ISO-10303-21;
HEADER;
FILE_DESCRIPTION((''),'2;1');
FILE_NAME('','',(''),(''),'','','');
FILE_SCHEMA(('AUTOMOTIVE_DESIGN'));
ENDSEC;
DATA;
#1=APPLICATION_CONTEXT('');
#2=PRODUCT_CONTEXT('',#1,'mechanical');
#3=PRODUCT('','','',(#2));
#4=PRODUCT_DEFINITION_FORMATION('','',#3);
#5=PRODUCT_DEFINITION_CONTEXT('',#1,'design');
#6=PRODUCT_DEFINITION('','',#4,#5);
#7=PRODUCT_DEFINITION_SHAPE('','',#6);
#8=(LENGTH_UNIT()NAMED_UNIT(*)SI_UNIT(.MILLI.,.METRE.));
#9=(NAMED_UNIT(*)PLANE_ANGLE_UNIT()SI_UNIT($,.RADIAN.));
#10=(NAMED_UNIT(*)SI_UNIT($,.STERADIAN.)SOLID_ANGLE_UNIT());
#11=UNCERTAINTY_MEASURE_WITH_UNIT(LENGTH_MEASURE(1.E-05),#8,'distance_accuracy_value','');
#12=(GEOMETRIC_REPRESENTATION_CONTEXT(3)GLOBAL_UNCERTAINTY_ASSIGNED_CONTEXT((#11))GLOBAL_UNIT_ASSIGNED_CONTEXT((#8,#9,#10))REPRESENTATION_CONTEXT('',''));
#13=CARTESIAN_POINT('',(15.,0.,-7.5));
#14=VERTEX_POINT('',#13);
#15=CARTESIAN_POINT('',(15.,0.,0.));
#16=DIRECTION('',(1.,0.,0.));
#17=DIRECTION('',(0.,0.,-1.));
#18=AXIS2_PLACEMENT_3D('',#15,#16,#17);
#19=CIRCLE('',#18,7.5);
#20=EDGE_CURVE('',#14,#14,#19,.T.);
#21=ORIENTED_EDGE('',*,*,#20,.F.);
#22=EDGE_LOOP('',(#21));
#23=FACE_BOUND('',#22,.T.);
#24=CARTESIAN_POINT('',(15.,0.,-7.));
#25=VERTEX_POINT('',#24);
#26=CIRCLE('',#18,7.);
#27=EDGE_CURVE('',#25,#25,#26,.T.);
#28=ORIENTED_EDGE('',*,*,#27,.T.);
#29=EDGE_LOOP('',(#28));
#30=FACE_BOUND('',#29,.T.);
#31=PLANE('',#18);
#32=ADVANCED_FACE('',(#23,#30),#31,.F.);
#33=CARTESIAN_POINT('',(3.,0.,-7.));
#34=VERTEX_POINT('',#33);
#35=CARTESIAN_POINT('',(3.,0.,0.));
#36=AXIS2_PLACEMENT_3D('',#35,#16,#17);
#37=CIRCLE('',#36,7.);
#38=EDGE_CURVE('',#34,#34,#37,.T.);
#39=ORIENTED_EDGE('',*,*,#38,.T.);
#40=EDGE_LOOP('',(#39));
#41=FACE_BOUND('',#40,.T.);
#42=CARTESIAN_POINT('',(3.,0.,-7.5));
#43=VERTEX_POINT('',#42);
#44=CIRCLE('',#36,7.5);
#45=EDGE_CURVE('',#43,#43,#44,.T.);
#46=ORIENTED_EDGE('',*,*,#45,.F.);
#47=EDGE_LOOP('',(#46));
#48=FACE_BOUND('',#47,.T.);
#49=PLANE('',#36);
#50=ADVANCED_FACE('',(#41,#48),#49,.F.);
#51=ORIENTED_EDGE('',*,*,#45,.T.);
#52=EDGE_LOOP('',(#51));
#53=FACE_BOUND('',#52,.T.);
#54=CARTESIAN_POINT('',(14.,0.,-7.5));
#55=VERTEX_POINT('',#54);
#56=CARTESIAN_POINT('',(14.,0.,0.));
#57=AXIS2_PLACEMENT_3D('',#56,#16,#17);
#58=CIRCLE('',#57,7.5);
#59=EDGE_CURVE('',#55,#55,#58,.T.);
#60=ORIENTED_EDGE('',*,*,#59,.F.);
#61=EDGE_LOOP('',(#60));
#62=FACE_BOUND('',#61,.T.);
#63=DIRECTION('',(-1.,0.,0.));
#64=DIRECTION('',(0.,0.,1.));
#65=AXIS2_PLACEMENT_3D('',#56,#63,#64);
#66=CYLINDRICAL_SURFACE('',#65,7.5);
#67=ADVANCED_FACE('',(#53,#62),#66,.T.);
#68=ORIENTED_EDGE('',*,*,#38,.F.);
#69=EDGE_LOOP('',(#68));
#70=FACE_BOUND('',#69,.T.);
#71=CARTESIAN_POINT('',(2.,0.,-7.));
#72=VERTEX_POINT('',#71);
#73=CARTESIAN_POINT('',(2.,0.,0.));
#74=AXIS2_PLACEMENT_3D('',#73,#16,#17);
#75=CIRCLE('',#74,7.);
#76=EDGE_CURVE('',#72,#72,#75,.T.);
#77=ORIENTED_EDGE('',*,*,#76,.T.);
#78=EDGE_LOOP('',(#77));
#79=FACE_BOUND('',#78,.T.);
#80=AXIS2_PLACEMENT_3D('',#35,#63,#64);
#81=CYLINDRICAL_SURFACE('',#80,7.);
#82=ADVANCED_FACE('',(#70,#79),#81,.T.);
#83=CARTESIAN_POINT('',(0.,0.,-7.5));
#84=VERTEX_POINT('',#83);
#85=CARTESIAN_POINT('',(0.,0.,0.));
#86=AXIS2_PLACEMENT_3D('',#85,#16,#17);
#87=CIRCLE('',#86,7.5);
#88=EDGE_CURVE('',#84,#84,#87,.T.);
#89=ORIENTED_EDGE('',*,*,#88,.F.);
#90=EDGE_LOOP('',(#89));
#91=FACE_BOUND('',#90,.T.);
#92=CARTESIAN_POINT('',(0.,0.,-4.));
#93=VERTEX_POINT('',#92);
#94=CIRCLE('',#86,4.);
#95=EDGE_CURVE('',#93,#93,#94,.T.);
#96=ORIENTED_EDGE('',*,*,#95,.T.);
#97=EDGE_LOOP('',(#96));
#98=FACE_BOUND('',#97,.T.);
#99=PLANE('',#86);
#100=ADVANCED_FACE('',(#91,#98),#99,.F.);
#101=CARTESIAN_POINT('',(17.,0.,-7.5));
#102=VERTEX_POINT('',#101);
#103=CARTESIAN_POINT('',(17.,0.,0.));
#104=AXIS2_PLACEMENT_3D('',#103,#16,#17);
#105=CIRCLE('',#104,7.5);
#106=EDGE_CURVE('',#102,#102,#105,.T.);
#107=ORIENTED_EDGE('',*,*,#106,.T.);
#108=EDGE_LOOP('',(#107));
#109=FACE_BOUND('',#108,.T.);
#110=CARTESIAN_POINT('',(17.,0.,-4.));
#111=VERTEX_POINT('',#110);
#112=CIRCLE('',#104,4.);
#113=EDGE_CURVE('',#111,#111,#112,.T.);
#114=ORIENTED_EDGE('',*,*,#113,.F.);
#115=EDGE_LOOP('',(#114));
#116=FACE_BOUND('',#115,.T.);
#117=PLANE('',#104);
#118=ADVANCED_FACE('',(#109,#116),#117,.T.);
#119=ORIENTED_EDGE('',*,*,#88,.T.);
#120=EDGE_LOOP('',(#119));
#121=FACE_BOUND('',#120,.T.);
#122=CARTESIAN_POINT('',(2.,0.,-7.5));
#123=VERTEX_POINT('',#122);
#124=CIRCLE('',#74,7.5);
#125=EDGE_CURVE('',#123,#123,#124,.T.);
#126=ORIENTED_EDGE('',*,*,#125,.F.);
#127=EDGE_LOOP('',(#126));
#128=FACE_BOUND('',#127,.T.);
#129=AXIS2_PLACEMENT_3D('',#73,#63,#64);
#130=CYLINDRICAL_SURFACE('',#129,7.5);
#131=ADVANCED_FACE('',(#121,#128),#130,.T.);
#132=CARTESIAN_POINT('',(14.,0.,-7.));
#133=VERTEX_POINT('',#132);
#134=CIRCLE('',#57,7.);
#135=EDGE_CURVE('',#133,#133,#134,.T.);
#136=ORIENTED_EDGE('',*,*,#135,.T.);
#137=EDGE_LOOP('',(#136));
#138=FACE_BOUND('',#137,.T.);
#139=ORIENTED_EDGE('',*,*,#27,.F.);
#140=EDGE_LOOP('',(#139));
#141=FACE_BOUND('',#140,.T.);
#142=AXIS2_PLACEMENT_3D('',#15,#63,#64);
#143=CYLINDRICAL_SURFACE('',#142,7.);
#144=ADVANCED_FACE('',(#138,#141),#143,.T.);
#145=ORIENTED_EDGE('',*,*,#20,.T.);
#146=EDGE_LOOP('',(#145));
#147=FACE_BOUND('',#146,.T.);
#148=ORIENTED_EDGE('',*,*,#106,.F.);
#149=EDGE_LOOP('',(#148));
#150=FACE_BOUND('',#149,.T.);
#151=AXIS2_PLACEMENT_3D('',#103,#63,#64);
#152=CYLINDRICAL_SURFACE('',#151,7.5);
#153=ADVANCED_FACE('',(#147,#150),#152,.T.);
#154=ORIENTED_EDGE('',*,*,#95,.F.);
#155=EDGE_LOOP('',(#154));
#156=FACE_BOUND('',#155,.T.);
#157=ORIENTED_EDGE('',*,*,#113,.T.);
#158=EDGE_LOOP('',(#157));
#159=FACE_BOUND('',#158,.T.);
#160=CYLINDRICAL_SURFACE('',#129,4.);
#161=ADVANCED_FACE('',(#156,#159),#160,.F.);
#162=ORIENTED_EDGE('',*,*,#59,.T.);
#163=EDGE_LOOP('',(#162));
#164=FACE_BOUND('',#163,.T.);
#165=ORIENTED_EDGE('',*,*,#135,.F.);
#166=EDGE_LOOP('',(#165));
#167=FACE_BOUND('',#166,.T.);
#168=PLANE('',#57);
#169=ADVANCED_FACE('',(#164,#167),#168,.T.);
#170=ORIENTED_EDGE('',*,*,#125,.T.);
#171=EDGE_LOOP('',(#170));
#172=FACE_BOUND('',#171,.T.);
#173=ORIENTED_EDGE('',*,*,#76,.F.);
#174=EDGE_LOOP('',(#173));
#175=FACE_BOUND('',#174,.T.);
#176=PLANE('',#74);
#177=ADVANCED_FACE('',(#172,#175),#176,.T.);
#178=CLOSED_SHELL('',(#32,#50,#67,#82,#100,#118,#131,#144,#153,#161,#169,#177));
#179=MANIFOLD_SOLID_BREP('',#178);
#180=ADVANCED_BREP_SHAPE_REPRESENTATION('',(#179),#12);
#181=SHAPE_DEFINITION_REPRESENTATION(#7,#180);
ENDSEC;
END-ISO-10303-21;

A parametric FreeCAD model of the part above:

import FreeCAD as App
import Part
import Sketcher

V = App.Vector

doc = App.newDocument("Part")
body = doc.addObject("PartDesign::Body", "Body")

# Sketch on YZ plane
sketch1 = body.newObject("Sketcher::SketchObject", "Sketch")
sketch1.AttachmentSupport = (doc.getObject("YZ_Plane"), [""])
sketch1.MapMode = "FlatFace"
sketch1.addGeometry([
    Part.Circle(V(0, 0, 0), V(0, 0, 1), 7.5),
    Part.Circle(V(0, 0, 0), V(0, 0, 1), 4),
], False)
sketch1.addConstraint([
    Sketcher.Constraint("Coincident", 0, 3, -1, 1),
    Sketcher.Constraint("Coincident", 1, 3, -1, 1),
    Sketcher.Constraint("Diameter", 0, 15.0),
    Sketcher.Constraint("Diameter", 1, 8.0),
])
pad1 = body.newObject("PartDesign::Pad", "Pad")
pad1.Profile = sketch1
pad1.Length = 2

# Sketch on YZ plane
sketch2 = body.newObject("Sketcher::SketchObject", "Sketch001")
sketch2.AttachmentSupport = (doc.getObject("YZ_Plane"), [""])
sketch2.MapMode = "FlatFace"
sketch2.AttachmentOffset = App.Placement(V(0, 0, 2), App.Rotation())
sketch2.addGeometry([
    Part.Circle(V(0, 0, 0), V(0, 0, 1), 7),
    Part.Circle(V(0, 0, 0), V(0, 0, 1), 4),
], False)
sketch2.addConstraint([
    Sketcher.Constraint("Coincident", 0, 3, -1, 1),
    Sketcher.Constraint("Coincident", 1, 3, -1, 1),
    Sketcher.Constraint("Diameter", 0, 14.0),
    Sketcher.Constraint("Diameter", 1, 8.0),
])
pad2 = body.newObject("PartDesign::Pad", "Pad001")
pad2.Profile = sketch2
pad2.Length = 1

# Sketch on YZ plane
sketch3 = body.newObject("Sketcher::SketchObject", "Sketch002")
sketch3.AttachmentSupport = (doc.getObject("YZ_Plane"), [""])
sketch3.MapMode = "FlatFace"
sketch3.AttachmentOffset = App.Placement(V(0, 0, 3), App.Rotation())
sketch3.addGeometry([
    Part.Circle(V(0, 0, 0), V(0, 0, 1), 7.5),
    Part.Circle(V(0, 0, 0), V(0, 0, 1), 4),
], False)
sketch3.addConstraint([
    Sketcher.Constraint("Coincident", 0, 3, -1, 1),
    Sketcher.Constraint("Coincident", 1, 3, -1, 1),
    Sketcher.Constraint("Diameter", 0, 15.0),
    Sketcher.Constraint("Diameter", 1, 8.0),
])
pad3 = body.newObject("PartDesign::Pad", "Pad002")
pad3.Profile = sketch3
pad3.Length = 11

# Sketch on YZ plane
sketch4 = body.newObject("Sketcher::SketchObject", "Sketch003")
sketch4.AttachmentSupport = (doc.getObject("YZ_Plane"), [""])
sketch4.MapMode = "FlatFace"
sketch4.AttachmentOffset = App.Placement(V(0, 0, 14), App.Rotation())
sketch4.addGeometry([
    Part.Circle(V(0, 0, 0), V(0, 0, 1), 7),
    Part.Circle(V(0, 0, 0), V(0, 0, 1), 4),
], False)
sketch4.addConstraint([
    Sketcher.Constraint("Coincident", 0, 3, -1, 1),
    Sketcher.Constraint("Coincident", 1, 3, -1, 1),
    Sketcher.Constraint("Diameter", 0, 14.0),
    Sketcher.Constraint("Diameter", 1, 8.0),
])
pad4 = body.newObject("PartDesign::Pad", "Pad003")
pad4.Profile = sketch4
pad4.Length = 1

# Sketch on YZ plane
sketch5 = body.newObject("Sketcher::SketchObject", "Sketch004")
sketch5.AttachmentSupport = (doc.getObject("YZ_Plane"), [""])
sketch5.MapMode = "FlatFace"
sketch5.AttachmentOffset = App.Placement(V(0, 0, 15), App.Rotation())
sketch5.addGeometry([
    Part.Circle(V(0, 0, 0), V(0, 0, 1), 7.5),
    Part.Circle(V(0, 0, 0), V(0, 0, 1), 4),
], False)
sketch5.addConstraint([
    Sketcher.Constraint("Coincident", 0, 3, -1, 1),
    Sketcher.Constraint("Coincident", 1, 3, -1, 1),
    Sketcher.Constraint("Diameter", 0, 15.0),
    Sketcher.Constraint("Diameter", 1, 8.0),
])
pad5 = body.newObject("PartDesign::Pad", "Pad004")
pad5.Profile = sketch5
pad5.Length = 2

doc.recompute()
